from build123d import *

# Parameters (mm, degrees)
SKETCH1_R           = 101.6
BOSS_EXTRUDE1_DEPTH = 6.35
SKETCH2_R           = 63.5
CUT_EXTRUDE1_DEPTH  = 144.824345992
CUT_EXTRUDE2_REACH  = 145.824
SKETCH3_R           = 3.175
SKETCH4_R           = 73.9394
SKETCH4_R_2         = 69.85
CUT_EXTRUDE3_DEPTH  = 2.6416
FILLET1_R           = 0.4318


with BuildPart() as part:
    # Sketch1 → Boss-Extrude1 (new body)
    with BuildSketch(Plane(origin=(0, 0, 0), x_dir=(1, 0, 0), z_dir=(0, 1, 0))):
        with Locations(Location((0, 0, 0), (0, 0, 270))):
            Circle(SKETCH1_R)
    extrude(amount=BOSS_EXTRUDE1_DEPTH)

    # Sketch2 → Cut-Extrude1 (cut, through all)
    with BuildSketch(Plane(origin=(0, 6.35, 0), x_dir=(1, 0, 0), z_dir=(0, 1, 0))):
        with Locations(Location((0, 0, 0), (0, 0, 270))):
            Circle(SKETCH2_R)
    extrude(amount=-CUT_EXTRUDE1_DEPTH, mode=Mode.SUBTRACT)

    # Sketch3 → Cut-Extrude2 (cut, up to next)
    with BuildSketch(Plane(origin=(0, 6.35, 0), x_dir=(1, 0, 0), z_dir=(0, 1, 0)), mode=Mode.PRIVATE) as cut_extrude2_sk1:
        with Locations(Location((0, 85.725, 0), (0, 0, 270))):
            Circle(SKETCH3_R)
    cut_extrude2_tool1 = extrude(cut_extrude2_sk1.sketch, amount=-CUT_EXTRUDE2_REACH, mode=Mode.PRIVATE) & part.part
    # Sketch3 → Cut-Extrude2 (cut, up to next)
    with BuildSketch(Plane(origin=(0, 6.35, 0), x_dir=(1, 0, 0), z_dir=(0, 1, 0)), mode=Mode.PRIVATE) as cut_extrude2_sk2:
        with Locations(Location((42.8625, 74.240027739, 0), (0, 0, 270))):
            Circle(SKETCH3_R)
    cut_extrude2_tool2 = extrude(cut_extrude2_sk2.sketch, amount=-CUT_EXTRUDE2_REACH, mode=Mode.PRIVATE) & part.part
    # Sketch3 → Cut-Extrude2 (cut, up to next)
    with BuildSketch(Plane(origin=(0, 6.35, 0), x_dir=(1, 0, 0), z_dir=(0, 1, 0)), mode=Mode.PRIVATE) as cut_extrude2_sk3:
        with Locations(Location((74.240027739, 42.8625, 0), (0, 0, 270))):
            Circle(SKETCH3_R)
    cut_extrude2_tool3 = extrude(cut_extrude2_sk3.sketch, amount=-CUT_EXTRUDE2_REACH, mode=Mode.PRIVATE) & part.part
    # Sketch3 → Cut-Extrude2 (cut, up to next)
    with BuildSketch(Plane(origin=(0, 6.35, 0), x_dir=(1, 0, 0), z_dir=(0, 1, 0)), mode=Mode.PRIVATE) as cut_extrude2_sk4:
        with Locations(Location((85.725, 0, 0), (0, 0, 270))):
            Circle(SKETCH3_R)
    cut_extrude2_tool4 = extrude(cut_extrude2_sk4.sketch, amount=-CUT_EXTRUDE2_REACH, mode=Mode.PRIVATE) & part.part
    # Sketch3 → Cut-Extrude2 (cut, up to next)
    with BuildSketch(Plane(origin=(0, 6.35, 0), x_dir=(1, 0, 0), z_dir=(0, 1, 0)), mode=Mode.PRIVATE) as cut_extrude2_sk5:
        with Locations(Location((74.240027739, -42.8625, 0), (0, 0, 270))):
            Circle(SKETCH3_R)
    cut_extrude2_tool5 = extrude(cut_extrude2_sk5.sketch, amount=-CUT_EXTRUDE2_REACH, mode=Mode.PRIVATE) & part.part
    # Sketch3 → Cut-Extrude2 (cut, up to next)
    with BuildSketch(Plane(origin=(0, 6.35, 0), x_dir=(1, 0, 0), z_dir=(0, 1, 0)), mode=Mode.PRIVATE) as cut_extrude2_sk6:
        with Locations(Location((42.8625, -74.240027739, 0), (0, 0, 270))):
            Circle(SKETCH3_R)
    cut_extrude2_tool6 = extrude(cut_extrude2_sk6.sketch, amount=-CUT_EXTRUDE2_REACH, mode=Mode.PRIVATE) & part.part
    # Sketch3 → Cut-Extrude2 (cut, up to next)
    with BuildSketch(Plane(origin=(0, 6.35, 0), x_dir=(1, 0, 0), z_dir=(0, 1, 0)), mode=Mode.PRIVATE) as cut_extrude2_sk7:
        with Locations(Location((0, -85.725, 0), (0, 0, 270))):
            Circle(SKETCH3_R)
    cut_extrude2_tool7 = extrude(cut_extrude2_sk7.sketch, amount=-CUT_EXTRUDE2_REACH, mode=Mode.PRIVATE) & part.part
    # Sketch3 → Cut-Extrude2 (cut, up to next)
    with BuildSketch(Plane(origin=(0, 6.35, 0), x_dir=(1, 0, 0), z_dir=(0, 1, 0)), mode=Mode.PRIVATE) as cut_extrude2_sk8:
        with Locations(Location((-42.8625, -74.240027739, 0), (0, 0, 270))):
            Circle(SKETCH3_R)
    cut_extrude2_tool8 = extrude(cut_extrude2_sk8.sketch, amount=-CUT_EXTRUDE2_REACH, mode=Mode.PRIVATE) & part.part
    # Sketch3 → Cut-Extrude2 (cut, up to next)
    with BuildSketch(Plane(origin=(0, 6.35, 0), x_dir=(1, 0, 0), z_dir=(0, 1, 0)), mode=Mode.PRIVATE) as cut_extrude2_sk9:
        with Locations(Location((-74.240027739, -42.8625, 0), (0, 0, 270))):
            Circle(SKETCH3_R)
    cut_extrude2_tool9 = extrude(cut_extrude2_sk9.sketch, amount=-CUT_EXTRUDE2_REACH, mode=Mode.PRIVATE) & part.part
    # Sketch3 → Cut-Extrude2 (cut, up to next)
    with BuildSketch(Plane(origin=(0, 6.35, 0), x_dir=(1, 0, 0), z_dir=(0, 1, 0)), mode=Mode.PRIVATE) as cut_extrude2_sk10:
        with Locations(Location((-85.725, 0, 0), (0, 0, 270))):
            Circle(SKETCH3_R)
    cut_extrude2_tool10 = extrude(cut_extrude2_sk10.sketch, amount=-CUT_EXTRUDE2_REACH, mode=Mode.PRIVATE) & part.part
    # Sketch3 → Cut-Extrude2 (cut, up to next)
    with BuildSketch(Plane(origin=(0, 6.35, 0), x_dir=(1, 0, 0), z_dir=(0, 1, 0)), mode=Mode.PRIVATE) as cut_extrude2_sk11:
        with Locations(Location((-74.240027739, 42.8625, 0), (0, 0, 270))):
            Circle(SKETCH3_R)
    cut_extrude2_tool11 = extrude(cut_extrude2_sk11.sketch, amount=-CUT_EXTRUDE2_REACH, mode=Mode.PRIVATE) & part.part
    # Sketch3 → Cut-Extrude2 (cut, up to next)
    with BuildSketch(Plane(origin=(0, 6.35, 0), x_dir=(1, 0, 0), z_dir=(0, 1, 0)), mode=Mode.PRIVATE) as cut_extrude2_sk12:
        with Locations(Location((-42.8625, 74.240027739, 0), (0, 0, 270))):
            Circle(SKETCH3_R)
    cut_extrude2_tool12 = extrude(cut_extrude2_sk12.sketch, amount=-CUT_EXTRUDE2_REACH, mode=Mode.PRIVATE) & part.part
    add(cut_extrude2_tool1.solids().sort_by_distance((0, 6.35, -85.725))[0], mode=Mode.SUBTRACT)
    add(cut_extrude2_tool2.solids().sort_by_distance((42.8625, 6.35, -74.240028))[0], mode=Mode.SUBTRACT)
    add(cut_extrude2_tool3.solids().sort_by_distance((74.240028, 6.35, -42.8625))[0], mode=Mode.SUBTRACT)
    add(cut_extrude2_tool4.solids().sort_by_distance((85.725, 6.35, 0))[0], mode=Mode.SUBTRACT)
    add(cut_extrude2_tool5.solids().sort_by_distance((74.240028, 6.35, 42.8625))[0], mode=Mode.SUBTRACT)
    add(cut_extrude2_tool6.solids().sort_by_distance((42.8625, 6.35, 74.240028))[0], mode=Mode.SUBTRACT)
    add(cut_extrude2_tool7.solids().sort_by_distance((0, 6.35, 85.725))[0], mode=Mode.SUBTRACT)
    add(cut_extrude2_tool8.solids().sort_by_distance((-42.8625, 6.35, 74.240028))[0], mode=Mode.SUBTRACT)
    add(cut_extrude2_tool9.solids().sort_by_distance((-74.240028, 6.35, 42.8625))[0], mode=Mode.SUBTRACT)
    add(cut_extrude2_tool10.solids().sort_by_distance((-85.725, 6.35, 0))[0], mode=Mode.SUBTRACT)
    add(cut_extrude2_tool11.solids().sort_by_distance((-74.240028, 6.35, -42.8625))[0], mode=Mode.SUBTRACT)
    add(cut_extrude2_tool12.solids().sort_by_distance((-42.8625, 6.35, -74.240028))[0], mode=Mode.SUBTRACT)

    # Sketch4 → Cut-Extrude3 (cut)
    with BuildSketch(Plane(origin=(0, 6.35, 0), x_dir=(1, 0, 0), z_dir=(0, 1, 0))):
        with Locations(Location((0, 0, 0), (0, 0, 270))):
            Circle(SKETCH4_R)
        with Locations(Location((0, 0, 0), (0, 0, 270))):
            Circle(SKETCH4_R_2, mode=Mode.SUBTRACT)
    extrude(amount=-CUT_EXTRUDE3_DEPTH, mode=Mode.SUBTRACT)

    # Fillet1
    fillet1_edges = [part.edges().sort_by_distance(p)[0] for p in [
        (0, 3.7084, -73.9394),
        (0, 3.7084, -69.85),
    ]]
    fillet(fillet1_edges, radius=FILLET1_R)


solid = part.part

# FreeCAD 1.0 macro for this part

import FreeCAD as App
import Part
import Sketcher
from FreeCAD import Vector
Q = App.Units.Quantity


def edges_at(feature, points):
    """Names of the edges that pass closest to the given points."""
    edges = feature.Shape.Edges
    near = lambda p: min(range(len(edges)), key=lambda i: edges[i].distToShape(Part.Vertex(*p))[0])
    return sorted({f"Edge{near(p) + 1}" for p in points})

doc = App.newDocument("Part")
params = doc.addObject("Spreadsheet::Sheet", "Params")
for row, (alias, value) in enumerate([
    ("sketch1_diameter", "8 in"),
    ("pad1_length", "0.25 in"),
    ("sketch2_diameter", "5 in"),
    ("sketch3_diameter", "0.25 in"),
    ("sketch4_diameter", "0.25 in"),
    ("sketch5_diameter", "0.25 in"),
    ("sketch6_diameter", "0.25 in"),
    ("sketch7_diameter", "0.25 in"),
    ("sketch8_diameter", "0.25 in"),
    ("sketch9_diameter", "0.25 in"),
    ("sketch10_diameter", "0.25 in"),
    ("sketch11_diameter", "0.25 in"),
    ("sketch12_diameter", "0.25 in"),
    ("sketch13_diameter", "0.25 in"),
    ("sketch14_diameter", "0.25 in"),
    ("sketch15_diameter", "5.5 in"),
    ("sketch15_diameter2", "5.822 in"),
    ("pocket14_length", "0.104 in"),
    ("fillet_radius", "0.017 in"),
], start=1):
    params.set(f"A{row}", alias)
    params.set(f"B{row}", "=" + value)
    params.setAlias(f"B{row}", alias)

body = doc.addObject("PartDesign::Body", "Body")

# Sketch on XZ plane
sketch1 = body.newObject("Sketcher::SketchObject", "Sketch")
sketch1.AttachmentSupport = (doc.getObject("XZ_Plane"), [""])
sketch1.MapMode = "FlatFace"
sketch1.addGeometry(Part.Circle(Vector(0, 0, 0), Vector(0, 0, 1), 102), False)
sketch1.addConstraint([
    Sketcher.Constraint("Coincident", 0, 3, -1, 1),
    Sketcher.Constraint("Diameter", 0, Q("8 in")),
])
sketch1.setExpression("Constraints[1]", "Params.sketch1_diameter")
pad1 = body.newObject("PartDesign::Pad", "Pad")
pad1.Profile = sketch1
pad1.setExpression("Length", "Params.pad1_length")
pad1.Reversed = True

# Sketch on XZ plane
sketch2 = body.newObject("Sketcher::SketchObject", "Sketch001")
sketch2.AttachmentSupport = (doc.getObject("XZ_Plane"), [""])
sketch2.MapMode = "FlatFace"
sketch2.AttachmentOffset = App.Placement(Vector(0, 0, -0.25 * 25.4), App.Rotation())
sketch2.addGeometry(Part.Circle(Vector(0, 0, 0), Vector(0, 0, 1), 64), False)
sketch2.addConstraint([
    Sketcher.Constraint("Coincident", 0, 3, -1, 1),
    Sketcher.Constraint("Diameter", 0, Q("5 in")),
])
sketch2.setExpression("Constraints[1]", "Params.sketch2_diameter")
pocket1 = body.newObject("PartDesign::Pocket", "Pocket")
pocket1.Profile = sketch2
pocket1.Type = "ThroughAll"
pocket1.Reversed = True

# Sketch on XZ plane
sketch3 = body.newObject("Sketcher::SketchObject", "Sketch002")
sketch3.AttachmentSupport = (doc.getObject("XZ_Plane"), [""])
sketch3.MapMode = "FlatFace"
sketch3.AttachmentOffset = App.Placement(Vector(0, 0, -0.25 * 25.4), App.Rotation())
sketch3.addGeometry(Part.Circle(Vector(0, -85.7, 0), Vector(0, 0, 1), 3.2), False)
sketch3.addConstraint([
    Sketcher.Constraint("PointOnObject", 0, 3, -2),
    Sketcher.Constraint("Diameter", 0, Q("0.25 in")),
    Sketcher.Constraint("DistanceY", 0, 3, -1, 1, Q("3.375 in")),
])
sketch3.setExpression("Constraints[1]", "Params.sketch3_diameter")
pocket2 = body.newObject("PartDesign::Pocket", "Pocket001")
pocket2.Profile = sketch3
pocket2.Type = "UpToFirst"
pocket2.Reversed = True

# Sketch on XZ plane
sketch4 = body.newObject("Sketcher::SketchObject", "Sketch003")
sketch4.AttachmentSupport = (doc.getObject("XZ_Plane"), [""])
sketch4.MapMode = "FlatFace"
sketch4.AttachmentOffset = App.Placement(Vector(0, 0, -0.25 * 25.4), App.Rotation())
sketch4.addGeometry(Part.Circle(Vector(42.9, -74.2, 0), Vector(0, 0, 1), 3.2), False)
sketch4.addConstraint([
    Sketcher.Constraint("Diameter", 0, Q("0.25 in")),
    Sketcher.Constraint("DistanceX", -1, 1, 0, 3, Q("1.6875 in")),
    Sketcher.Constraint("DistanceY", 0, 3, -1, 1, 74.240028),
])
sketch4.setExpression("Constraints[0]", "Params.sketch4_diameter")
pocket3 = body.newObject("PartDesign::Pocket", "Pocket002")
pocket3.Profile = sketch4
pocket3.Type = "UpToFirst"
pocket3.Reversed = True

# Sketch on XZ plane
sketch5 = body.newObject("Sketcher::SketchObject", "Sketch004")
sketch5.AttachmentSupport = (doc.getObject("XZ_Plane"), [""])
sketch5.MapMode = "FlatFace"
sketch5.AttachmentOffset = App.Placement(Vector(0, 0, -0.25 * 25.4), App.Rotation())
sketch5.addGeometry(Part.Circle(Vector(74.2, -42.9, 0), Vector(0, 0, 1), 3.2), False)
sketch5.addConstraint([
    Sketcher.Constraint("Diameter", 0, Q("0.25 in")),
    Sketcher.Constraint("DistanceY", 0, 3, -1, 1, Q("1.6875 in")),
    Sketcher.Constraint("DistanceX", -1, 1, 0, 3, 74.240028),
])
sketch5.setExpression("Constraints[0]", "Params.sketch5_diameter")
pocket4 = body.newObject("PartDesign::Pocket", "Pocket003")
pocket4.Profile = sketch5
pocket4.Type = "UpToFirst"
pocket4.Reversed = True

# Sketch on XZ plane
sketch6 = body.newObject("Sketcher::SketchObject", "Sketch005")
sketch6.AttachmentSupport = (doc.getObject("XZ_Plane"), [""])
sketch6.MapMode = "FlatFace"
sketch6.AttachmentOffset = App.Placement(Vector(0, 0, -0.25 * 25.4), App.Rotation())
sketch6.addGeometry(Part.Circle(Vector(85.7, 0, 0), Vector(0, 0, 1), 3.2), False)
sketch6.addConstraint([
    Sketcher.Constraint("PointOnObject", 0, 3, -1),
    Sketcher.Constraint("Diameter", 0, Q("0.25 in")),
    Sketcher.Constraint("DistanceX", -1, 1, 0, 3, Q("3.375 in")),
])
sketch6.setExpression("Constraints[1]", "Params.sketch6_diameter")
pocket5 = body.newObject("PartDesign::Pocket", "Pocket004")
pocket5.Profile = sketch6
pocket5.Type = "UpToFirst"
pocket5.Reversed = True

# Sketch on XZ plane
sketch7 = body.newObject("Sketcher::SketchObject", "Sketch006")
sketch7.AttachmentSupport = (doc.getObject("XZ_Plane"), [""])
sketch7.MapMode = "FlatFace"
sketch7.AttachmentOffset = App.Placement(Vector(0, 0, -0.25 * 25.4), App.Rotation())
sketch7.addGeometry(Part.Circle(Vector(74.2, 42.9, 0), Vector(0, 0, 1), 3.2), False)
sketch7.addConstraint([
    Sketcher.Constraint("Diameter", 0, Q("0.25 in")),
    Sketcher.Constraint("DistanceY", -1, 1, 0, 3, Q("1.6875 in")),
    Sketcher.Constraint("DistanceX", -1, 1, 0, 3, 74.240028),
])
sketch7.setExpression("Constraints[0]", "Params.sketch7_diameter")
pocket6 = body.newObject("PartDesign::Pocket", "Pocket005")
pocket6.Profile = sketch7
pocket6.Type = "UpToFirst"
pocket6.Reversed = True

# Sketch on XZ plane
sketch8 = body.newObject("Sketcher::SketchObject", "Sketch007")
sketch8.AttachmentSupport = (doc.getObject("XZ_Plane"), [""])
sketch8.MapMode = "FlatFace"
sketch8.AttachmentOffset = App.Placement(Vector(0, 0, -0.25 * 25.4), App.Rotation())
sketch8.addGeometry(Part.Circle(Vector(42.9, 74.2, 0), Vector(0, 0, 1), 3.2), False)
sketch8.addConstraint([
    Sketcher.Constraint("Diameter", 0, Q("0.25 in")),
    Sketcher.Constraint("DistanceX", -1, 1, 0, 3, Q("1.6875 in")),
    Sketcher.Constraint("DistanceY", -1, 1, 0, 3, 74.240028),
])
sketch8.setExpression("Constraints[0]", "Params.sketch8_diameter")
pocket7 = body.newObject("PartDesign::Pocket", "Pocket006")
pocket7.Profile = sketch8
pocket7.Type = "UpToFirst"
pocket7.Reversed = True

# Sketch on XZ plane
sketch9 = body.newObject("Sketcher::SketchObject", "Sketch008")
sketch9.AttachmentSupport = (doc.getObject("XZ_Plane"), [""])
sketch9.MapMode = "FlatFace"
sketch9.AttachmentOffset = App.Placement(Vector(0, 0, -0.25 * 25.4), App.Rotation())
sketch9.addGeometry(Part.Circle(Vector(0, 85.7, 0), Vector(0, 0, 1), 3.2), False)
sketch9.addConstraint([
    Sketcher.Constraint("PointOnObject", 0, 3, -2),
    Sketcher.Constraint("Diameter", 0, Q("0.25 in")),
    Sketcher.Constraint("DistanceY", -1, 1, 0, 3, Q("3.375 in")),
])
sketch9.setExpression("Constraints[1]", "Params.sketch9_diameter")
pocket8 = body.newObject("PartDesign::Pocket", "Pocket007")
pocket8.Profile = sketch9
pocket8.Type = "UpToFirst"
pocket8.Reversed = True

# Sketch on XZ plane
sketch10 = body.newObject("Sketcher::SketchObject", "Sketch009")
sketch10.AttachmentSupport = (doc.getObject("XZ_Plane"), [""])
sketch10.MapMode = "FlatFace"
sketch10.AttachmentOffset = App.Placement(Vector(0, 0, -0.25 * 25.4), App.Rotation())
sketch10.addGeometry(Part.Circle(Vector(-42.9, 74.2, 0), Vector(0, 0, 1), 3.2), False)
sketch10.addConstraint([
    Sketcher.Constraint("Diameter", 0, Q("0.25 in")),
    Sketcher.Constraint("DistanceX", 0, 3, -1, 1, Q("1.6875 in")),
    Sketcher.Constraint("DistanceY", -1, 1, 0, 3, 74.240028),
])
sketch10.setExpression("Constraints[0]", "Params.sketch10_diameter")
pocket9 = body.newObject("PartDesign::Pocket", "Pocket008")
pocket9.Profile = sketch10
pocket9.Type = "UpToFirst"
pocket9.Reversed = True

# Sketch on XZ plane
sketch11 = body.newObject("Sketcher::SketchObject", "Sketch010")
sketch11.AttachmentSupport = (doc.getObject("XZ_Plane"), [""])
sketch11.MapMode = "FlatFace"
sketch11.AttachmentOffset = App.Placement(Vector(0, 0, -0.25 * 25.4), App.Rotation())
sketch11.addGeometry(Part.Circle(Vector(-74.2, 42.9, 0), Vector(0, 0, 1), 3.2), False)
sketch11.addConstraint([
    Sketcher.Constraint("Diameter", 0, Q("0.25 in")),
    Sketcher.Constraint("DistanceY", -1, 1, 0, 3, Q("1.6875 in")),
    Sketcher.Constraint("DistanceX", 0, 3, -1, 1, 74.240028),
])
sketch11.setExpression("Constraints[0]", "Params.sketch11_diameter")
pocket10 = body.newObject("PartDesign::Pocket", "Pocket009")
pocket10.Profile = sketch11
pocket10.Type = "UpToFirst"
pocket10.Reversed = True

# Sketch on XZ plane
sketch12 = body.newObject("Sketcher::SketchObject", "Sketch011")
sketch12.AttachmentSupport = (doc.getObject("XZ_Plane"), [""])
sketch12.MapMode = "FlatFace"
sketch12.AttachmentOffset = App.Placement(Vector(0, 0, -0.25 * 25.4), App.Rotation())
sketch12.addGeometry(Part.Circle(Vector(-85.7, 0, 0), Vector(0, 0, 1), 3.2), False)
sketch12.addConstraint([
    Sketcher.Constraint("PointOnObject", 0, 3, -1),
    Sketcher.Constraint("Diameter", 0, Q("0.25 in")),
    Sketcher.Constraint("DistanceX", 0, 3, -1, 1, Q("3.375 in")),
])
sketch12.setExpression("Constraints[1]", "Params.sketch12_diameter")
pocket11 = body.newObject("PartDesign::Pocket", "Pocket010")
pocket11.Profile = sketch12
pocket11.Type = "UpToFirst"
pocket11.Reversed = True

# Sketch on XZ plane
sketch13 = body.newObject("Sketcher::SketchObject", "Sketch012")
sketch13.AttachmentSupport = (doc.getObject("XZ_Plane"), [""])
sketch13.MapMode = "FlatFace"
sketch13.AttachmentOffset = App.Placement(Vector(0, 0, -0.25 * 25.4), App.Rotation())
sketch13.addGeometry(Part.Circle(Vector(-74.2, -42.9, 0), Vector(0, 0, 1), 3.2), False)
sketch13.addConstraint([
    Sketcher.Constraint("Diameter", 0, Q("0.25 in")),
    Sketcher.Constraint("DistanceY", 0, 3, -1, 1, Q("1.6875 in")),
    Sketcher.Constraint("DistanceX", 0, 3, -1, 1, 74.240028),
])
sketch13.setExpression("Constraints[0]", "Params.sketch13_diameter")
pocket12 = body.newObject("PartDesign::Pocket", "Pocket011")
pocket12.Profile = sketch13
pocket12.Type = "UpToFirst"
pocket12.Reversed = True

# Sketch on XZ plane
sketch14 = body.newObject("Sketcher::SketchObject", "Sketch013")
sketch14.AttachmentSupport = (doc.getObject("XZ_Plane"), [""])
sketch14.MapMode = "FlatFace"
sketch14.AttachmentOffset = App.Placement(Vector(0, 0, -0.25 * 25.4), App.Rotation())
sketch14.addGeometry(Part.Circle(Vector(-42.9, -74.2, 0), Vector(0, 0, 1), 3.2), False)
sketch14.addConstraint([
    Sketcher.Constraint("Diameter", 0, Q("0.25 in")),
    Sketcher.Constraint("DistanceX", 0, 3, -1, 1, Q("1.6875 in")),
    Sketcher.Constraint("DistanceY", 0, 3, -1, 1, 74.240028),
])
sketch14.setExpression("Constraints[0]", "Params.sketch14_diameter")
pocket13 = body.newObject("PartDesign::Pocket", "Pocket012")
pocket13.Profile = sketch14
pocket13.Type = "UpToFirst"
pocket13.Reversed = True

# Sketch on XZ plane
sketch15 = body.newObject("Sketcher::SketchObject", "Sketch014")
sketch15.AttachmentSupport = (doc.getObject("XZ_Plane"), [""])
sketch15.MapMode = "FlatFace"
sketch15.AttachmentOffset = App.Placement(Vector(0, 0, -0.25 * 25.4), App.Rotation())
sketch15.addGeometry([
    Part.Circle(Vector(0, 0, 0), Vector(0, 0, 1), 74),
    Part.Circle(Vector(0, 0, 0), Vector(0, 0, 1), 70),
], False)
sketch15.addConstraint([
    Sketcher.Constraint("Coincident", 0, 3, -1, 1),
    Sketcher.Constraint("Coincident", 1, 3, -1, 1),
    Sketcher.Constraint("Diameter", 1, Q("5.5 in")),
    Sketcher.Constraint("Diameter", 0, Q("5.822 in")),
])
sketch15.setExpression("Constraints[2]", "Params.sketch15_diameter")
sketch15.setExpression("Constraints[3]", "Params.sketch15_diameter2")
pocket14 = body.newObject("PartDesign::Pocket", "Pocket013")
pocket14.Profile = sketch15
pocket14.setExpression("Length", "Params.pocket14_length")
pocket14.Reversed = True
doc.recompute()

fillet = body.newObject("PartDesign::Fillet", "Fillet")
fillet.Base = (pocket14, edges_at(pocket14, [(0, 3.708, -73.939), (0, 3.708, -69.85)]))
fillet.setExpression("Radius", "Params.fillet_radius")

doc.recompute()
